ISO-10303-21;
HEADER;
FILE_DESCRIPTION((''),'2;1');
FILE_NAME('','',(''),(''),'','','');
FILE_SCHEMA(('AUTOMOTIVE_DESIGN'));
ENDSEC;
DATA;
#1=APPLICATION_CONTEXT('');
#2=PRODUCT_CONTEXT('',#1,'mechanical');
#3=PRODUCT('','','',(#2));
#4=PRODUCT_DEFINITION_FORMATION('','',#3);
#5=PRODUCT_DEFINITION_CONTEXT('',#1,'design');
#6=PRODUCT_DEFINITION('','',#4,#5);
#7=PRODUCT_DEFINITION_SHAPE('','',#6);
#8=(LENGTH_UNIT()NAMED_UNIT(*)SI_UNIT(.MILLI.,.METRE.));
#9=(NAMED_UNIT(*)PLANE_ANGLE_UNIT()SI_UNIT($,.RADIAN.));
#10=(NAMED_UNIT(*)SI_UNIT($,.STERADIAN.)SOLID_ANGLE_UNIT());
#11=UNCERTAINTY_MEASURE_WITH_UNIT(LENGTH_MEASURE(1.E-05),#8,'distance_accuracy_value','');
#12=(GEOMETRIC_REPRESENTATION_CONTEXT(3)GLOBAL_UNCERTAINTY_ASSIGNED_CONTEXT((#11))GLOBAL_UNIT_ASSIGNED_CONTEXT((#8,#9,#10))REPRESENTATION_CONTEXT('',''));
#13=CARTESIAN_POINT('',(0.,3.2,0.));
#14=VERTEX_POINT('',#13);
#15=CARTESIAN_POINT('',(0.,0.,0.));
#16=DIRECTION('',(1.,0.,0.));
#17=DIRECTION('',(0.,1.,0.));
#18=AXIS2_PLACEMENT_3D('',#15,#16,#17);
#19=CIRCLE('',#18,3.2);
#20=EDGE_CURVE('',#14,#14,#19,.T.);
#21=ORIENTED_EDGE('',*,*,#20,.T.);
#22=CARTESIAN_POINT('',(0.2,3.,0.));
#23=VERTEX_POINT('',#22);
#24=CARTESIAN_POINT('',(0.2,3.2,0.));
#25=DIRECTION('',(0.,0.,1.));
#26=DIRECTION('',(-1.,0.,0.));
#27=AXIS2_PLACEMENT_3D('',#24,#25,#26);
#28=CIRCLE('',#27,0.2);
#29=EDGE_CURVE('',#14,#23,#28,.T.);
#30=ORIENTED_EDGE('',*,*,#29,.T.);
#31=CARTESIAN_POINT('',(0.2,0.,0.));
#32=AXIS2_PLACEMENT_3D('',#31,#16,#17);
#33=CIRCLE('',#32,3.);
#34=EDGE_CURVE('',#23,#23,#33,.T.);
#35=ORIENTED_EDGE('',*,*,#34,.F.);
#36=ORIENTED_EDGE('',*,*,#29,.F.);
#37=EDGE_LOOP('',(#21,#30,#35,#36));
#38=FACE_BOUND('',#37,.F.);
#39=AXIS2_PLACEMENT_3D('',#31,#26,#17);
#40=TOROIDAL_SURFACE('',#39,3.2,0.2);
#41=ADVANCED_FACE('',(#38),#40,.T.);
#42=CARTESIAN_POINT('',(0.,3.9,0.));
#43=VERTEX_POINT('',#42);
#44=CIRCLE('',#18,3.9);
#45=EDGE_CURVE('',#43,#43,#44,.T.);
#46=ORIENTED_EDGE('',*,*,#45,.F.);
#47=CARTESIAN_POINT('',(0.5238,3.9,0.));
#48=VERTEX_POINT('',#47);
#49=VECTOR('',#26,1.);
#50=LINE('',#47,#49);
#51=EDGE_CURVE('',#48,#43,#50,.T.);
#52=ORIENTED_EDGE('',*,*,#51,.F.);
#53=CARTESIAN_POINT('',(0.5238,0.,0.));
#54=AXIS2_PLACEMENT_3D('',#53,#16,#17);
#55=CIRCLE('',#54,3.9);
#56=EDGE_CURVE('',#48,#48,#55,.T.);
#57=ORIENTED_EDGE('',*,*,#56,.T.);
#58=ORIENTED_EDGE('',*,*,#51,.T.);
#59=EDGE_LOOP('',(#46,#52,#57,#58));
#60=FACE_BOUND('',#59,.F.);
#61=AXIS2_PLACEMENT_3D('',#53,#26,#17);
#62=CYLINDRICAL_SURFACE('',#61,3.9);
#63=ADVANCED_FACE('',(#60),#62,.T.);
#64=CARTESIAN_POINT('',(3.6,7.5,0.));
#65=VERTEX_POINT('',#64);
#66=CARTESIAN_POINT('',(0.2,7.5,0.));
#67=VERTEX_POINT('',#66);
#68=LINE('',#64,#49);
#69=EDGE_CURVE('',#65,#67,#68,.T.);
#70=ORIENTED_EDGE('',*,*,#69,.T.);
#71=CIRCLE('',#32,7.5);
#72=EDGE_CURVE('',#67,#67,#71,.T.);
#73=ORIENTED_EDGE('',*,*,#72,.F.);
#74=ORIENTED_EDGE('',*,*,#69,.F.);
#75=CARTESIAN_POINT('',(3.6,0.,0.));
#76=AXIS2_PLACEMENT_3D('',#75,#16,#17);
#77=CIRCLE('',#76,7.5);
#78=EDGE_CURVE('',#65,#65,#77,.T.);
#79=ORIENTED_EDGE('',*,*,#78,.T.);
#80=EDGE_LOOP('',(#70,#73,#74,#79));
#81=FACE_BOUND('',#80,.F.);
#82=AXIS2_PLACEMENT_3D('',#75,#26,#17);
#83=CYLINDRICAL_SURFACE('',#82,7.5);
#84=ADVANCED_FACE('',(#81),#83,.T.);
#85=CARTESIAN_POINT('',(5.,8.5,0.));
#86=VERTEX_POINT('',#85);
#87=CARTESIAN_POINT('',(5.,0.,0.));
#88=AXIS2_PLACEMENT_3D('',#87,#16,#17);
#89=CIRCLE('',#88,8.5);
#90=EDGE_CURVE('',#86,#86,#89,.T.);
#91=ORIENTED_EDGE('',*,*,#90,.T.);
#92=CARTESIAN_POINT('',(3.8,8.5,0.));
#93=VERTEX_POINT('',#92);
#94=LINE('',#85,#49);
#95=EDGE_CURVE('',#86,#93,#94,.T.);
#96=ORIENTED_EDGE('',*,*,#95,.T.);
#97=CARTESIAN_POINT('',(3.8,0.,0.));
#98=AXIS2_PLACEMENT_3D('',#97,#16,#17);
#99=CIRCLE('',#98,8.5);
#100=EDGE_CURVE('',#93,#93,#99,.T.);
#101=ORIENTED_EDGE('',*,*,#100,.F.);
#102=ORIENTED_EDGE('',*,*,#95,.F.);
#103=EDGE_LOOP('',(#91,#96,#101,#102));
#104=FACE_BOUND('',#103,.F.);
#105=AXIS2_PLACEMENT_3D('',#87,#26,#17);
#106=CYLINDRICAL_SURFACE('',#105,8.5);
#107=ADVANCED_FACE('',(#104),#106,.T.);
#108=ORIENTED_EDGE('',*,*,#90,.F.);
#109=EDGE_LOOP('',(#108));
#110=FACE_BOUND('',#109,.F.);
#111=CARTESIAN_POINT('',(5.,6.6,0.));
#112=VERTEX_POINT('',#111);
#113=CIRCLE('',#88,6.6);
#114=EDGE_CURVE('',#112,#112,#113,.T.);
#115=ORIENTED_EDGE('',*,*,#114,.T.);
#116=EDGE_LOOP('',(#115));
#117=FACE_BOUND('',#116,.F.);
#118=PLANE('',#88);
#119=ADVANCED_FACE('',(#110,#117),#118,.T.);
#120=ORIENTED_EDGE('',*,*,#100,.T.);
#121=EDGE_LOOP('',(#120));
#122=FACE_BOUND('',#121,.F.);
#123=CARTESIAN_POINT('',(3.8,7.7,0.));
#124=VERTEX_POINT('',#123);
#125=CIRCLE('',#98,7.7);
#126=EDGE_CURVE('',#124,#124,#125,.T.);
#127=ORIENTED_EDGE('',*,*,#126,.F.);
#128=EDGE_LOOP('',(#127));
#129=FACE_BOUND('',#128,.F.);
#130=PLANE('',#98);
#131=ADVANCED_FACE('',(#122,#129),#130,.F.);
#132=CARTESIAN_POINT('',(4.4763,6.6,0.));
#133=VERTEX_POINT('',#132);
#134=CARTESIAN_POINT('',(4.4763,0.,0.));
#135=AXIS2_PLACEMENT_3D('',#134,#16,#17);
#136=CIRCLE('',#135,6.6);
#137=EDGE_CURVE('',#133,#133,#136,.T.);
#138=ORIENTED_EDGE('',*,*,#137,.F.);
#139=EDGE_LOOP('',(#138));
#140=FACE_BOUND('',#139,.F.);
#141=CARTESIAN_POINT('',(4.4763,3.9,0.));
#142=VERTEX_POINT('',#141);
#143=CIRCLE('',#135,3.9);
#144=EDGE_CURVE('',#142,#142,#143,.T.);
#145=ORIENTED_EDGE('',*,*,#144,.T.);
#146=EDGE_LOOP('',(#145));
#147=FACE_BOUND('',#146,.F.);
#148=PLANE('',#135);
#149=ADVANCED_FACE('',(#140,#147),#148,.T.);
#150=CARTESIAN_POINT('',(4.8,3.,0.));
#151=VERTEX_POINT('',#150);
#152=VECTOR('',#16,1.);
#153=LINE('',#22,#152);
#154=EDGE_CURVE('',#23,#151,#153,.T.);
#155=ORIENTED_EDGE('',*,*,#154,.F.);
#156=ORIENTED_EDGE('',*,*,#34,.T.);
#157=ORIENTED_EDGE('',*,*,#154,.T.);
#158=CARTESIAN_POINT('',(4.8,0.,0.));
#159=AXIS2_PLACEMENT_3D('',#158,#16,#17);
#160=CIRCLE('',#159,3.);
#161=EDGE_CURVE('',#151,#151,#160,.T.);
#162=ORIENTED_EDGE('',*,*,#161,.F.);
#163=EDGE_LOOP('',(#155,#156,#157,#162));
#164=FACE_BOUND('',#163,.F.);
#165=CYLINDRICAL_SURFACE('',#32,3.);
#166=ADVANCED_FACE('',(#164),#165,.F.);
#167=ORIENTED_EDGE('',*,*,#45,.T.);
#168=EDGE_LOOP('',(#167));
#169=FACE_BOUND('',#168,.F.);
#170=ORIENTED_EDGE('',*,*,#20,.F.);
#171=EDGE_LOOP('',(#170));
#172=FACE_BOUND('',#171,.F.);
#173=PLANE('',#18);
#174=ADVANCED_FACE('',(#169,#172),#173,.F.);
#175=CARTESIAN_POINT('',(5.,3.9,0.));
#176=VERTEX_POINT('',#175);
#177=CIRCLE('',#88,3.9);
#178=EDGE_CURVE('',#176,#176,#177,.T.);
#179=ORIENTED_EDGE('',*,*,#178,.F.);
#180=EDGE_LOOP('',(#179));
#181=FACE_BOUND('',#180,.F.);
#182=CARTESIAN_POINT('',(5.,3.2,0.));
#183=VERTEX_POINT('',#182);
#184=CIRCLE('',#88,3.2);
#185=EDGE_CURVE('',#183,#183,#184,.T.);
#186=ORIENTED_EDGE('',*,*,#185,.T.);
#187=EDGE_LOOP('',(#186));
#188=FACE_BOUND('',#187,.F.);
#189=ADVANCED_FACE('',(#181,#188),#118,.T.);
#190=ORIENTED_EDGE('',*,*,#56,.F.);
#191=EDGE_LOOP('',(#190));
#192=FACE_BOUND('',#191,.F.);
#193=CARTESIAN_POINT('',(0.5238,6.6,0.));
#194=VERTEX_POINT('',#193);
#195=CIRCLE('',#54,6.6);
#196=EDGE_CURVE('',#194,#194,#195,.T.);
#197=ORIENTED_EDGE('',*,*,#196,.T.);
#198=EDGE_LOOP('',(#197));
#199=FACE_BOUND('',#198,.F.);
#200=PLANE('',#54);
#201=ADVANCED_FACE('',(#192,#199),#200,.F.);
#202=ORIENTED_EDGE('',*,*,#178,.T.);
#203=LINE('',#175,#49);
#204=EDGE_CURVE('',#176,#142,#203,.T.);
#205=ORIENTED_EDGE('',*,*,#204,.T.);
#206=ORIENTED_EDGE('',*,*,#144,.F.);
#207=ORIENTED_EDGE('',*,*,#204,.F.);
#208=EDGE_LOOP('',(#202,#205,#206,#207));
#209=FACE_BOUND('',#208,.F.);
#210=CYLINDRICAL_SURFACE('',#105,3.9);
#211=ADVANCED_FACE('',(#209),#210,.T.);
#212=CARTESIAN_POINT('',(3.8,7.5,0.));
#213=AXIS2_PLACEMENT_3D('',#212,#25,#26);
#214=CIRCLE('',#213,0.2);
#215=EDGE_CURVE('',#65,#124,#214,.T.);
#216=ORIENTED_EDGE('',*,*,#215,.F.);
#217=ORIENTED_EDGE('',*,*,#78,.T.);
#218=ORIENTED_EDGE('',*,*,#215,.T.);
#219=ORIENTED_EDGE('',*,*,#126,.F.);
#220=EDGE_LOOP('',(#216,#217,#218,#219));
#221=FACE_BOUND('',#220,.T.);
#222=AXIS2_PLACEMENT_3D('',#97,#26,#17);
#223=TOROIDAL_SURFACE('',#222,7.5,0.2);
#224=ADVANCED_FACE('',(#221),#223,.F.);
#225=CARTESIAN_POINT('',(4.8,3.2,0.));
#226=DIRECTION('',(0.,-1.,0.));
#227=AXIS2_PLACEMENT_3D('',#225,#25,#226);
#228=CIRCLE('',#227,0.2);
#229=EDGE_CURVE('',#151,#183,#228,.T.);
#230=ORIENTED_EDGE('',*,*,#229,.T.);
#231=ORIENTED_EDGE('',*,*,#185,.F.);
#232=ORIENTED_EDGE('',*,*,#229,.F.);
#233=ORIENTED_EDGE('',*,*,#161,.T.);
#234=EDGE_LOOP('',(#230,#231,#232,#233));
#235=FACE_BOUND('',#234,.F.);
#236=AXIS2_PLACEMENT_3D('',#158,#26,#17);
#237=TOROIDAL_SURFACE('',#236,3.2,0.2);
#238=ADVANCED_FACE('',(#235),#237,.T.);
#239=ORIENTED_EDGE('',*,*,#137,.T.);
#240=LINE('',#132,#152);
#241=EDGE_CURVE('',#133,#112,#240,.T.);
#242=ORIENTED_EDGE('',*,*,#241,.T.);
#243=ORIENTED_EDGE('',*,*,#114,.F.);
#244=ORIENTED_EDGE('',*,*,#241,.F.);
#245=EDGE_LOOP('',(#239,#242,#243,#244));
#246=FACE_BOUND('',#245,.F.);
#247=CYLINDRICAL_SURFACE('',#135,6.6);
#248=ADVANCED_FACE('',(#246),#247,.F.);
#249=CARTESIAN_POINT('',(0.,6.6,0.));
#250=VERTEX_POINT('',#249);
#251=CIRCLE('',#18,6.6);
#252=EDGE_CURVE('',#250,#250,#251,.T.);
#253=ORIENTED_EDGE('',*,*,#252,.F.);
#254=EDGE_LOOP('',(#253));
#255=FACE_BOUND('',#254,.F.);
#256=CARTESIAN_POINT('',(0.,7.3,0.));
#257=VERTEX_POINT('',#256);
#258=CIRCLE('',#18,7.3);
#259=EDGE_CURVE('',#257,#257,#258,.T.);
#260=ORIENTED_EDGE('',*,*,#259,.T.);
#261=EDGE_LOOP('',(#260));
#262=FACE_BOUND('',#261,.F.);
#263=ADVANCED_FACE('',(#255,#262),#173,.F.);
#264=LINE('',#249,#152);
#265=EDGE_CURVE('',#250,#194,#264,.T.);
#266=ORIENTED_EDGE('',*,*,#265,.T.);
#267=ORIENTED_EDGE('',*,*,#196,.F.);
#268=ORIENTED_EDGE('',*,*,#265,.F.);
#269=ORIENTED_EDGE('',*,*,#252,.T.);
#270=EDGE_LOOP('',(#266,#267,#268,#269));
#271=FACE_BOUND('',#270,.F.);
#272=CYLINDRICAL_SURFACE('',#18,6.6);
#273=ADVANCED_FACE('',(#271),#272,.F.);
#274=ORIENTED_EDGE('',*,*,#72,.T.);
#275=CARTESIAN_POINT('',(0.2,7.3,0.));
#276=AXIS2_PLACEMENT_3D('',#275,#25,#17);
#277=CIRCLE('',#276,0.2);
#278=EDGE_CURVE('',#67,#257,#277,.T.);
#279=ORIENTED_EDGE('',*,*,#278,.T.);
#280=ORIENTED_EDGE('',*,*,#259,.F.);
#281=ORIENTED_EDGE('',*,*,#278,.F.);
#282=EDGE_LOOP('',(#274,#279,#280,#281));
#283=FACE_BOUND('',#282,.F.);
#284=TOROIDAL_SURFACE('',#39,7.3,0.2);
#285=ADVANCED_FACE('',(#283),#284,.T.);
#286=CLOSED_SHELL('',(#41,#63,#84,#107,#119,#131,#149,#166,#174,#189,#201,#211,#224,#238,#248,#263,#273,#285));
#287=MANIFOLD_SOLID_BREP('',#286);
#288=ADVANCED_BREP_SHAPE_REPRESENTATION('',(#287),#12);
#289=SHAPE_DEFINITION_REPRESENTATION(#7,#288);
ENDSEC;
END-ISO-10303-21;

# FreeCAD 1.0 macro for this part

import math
import FreeCAD as App
import Part
import Sketcher
from FreeCAD import Vector

doc = App.newDocument("Part")
params = doc.addObject("Spreadsheet::Sheet", "Params")
for row, (alias, value) in enumerate([
    ("sketch1_radius", "0.2 mm"),
    ("sketch1_width", "4.6 mm"),
    ("sketch1_width2", "1.2 mm"),
    ("sketch1_height", "0.7 mm"),
    ("sketch1_height2", "2.7 mm"),
    ("revolution_angle", "360 deg"),
], start=1):
    params.set(f"A{row}", alias)
    params.set(f"B{row}", "=" + value)
    params.setAlias(f"B{row}", alias)

body = doc.addObject("PartDesign::Body", "Body")

# Sketch on XY plane
sketch1 = body.newObject("Sketcher::SketchObject", "Sketch")
sketch1.AttachmentSupport = (doc.getObject("XY_Plane"), [""])
sketch1.MapMode = "FlatFace"
sketch1.addGeometry(Part.LineSegment(Vector(0, 3.9, 0), Vector(0, 3.2, 0)), False)
sketch1.addGeometry(Part.ArcOfCircle(Part.Circle(Vector(0.2, 3.2, 0), Vector(0, 0, 1), 0.2), math.radians(180), math.radians(270)), False)
sketch1.addGeometry(Part.LineSegment(Vector(0.2, 3, 0), Vector(4.8, 3, 0)), False)
sketch1.addGeometry(Part.ArcOfCircle(Part.Circle(Vector(4.8, 3.2, 0), Vector(0, 0, 1), 0.2), math.radians(-90), math.radians(0)), False)
sketch1.addGeometry(Part.LineSegment(Vector(5, 3.2, 0), Vector(5, 3.9, 0)), False)
sketch1.addGeometry(Part.LineSegment(Vector(5, 3.9, 0), Vector(4.4763, 3.9, 0)), False)
sketch1.addGeometry(Part.LineSegment(Vector(4.4763, 3.9, 0), Vector(4.4763, 6.6, 0)), False)
sketch1.addGeometry(Part.LineSegment(Vector(4.4763, 6.6, 0), Vector(5, 6.6, 0)), False)
sketch1.addGeometry(Part.LineSegment(Vector(5, 6.6, 0), Vector(5, 8.5, 0)), False)
sketch1.addGeometry(Part.LineSegment(Vector(5, 8.5, 0), Vector(3.8, 8.5, 0)), False)
sketch1.addGeometry(Part.LineSegment(Vector(3.8, 8.5, 0), Vector(3.8, 7.7, 0)), False)
sketch1.addGeometry(Part.ArcOfCircle(Part.Circle(Vector(3.8, 7.5, 0), Vector(0, 0, 1), 0.2), math.radians(180), math.radians(450)), False)
sketch1.addGeometry(Part.LineSegment(Vector(3.6, 7.5, 0), Vector(0.2, 7.5, 0)), False)
sketch1.addGeometry(Part.ArcOfCircle(Part.Circle(Vector(0.2, 7.3, 0), Vector(0, 0, 1), 0.2), math.radians(90), math.radians(180)), False)
sketch1.addGeometry(Part.LineSegment(Vector(0, 7.3, 0), Vector(0, 6.6, 0)), False)
sketch1.addGeometry(Part.LineSegment(Vector(0, 6.6, 0), Vector(0.5238, 6.6, 0)), False)
sketch1.addGeometry(Part.LineSegment(Vector(0.5238, 6.6, 0), Vector(0.5238, 3.9, 0)), False)
sketch1.addGeometry(Part.LineSegment(Vector(0.5238, 3.9, 0), Vector(0, 3.9, 0)), False)
sketch1.addConstraint(Sketcher.Constraint("Tangent", 0, 2, 1, 1))
sketch1.addConstraint(Sketcher.Constraint("Tangent", 1, 2, 2, 1))
sketch1.addConstraint(Sketcher.Constraint("Tangent", 2, 2, 3, 1))
sketch1.addConstraint(Sketcher.Constraint("Tangent", 3, 2, 4, 1))
sketch1.addConstraint(Sketcher.Constraint("Coincident", 4, 2, 5, 1))
sketch1.addConstraint(Sketcher.Constraint("Coincident", 5, 2, 6, 1))
sketch1.addConstraint(Sketcher.Constraint("Coincident", 6, 2, 7, 1))
sketch1.addConstraint(Sketcher.Constraint("Coincident", 7, 2, 8, 1))
sketch1.addConstraint(Sketcher.Constraint("Coincident", 8, 2, 9, 1))
sketch1.addConstraint(Sketcher.Constraint("Coincident", 9, 2, 10, 1))
sketch1.addConstraint(Sketcher.Constraint("Coincident", 10, 2, 11, 2))
sketch1.addConstraint(Sketcher.Constraint("Coincident", 11, 1, 12, 1))
sketch1.addConstraint(Sketcher.Constraint("Tangent", 12, 2, 13, 1))
sketch1.addConstraint(Sketcher.Constraint("Tangent", 13, 2, 14, 1))
sketch1.addConstraint(Sketcher.Constraint("Coincident", 14, 2, 15, 1))
sketch1.addConstraint(Sketcher.Constraint("Coincident", 15, 2, 16, 1))
sketch1.addConstraint(Sketcher.Constraint("Coincident", 16, 2, 17, 1))
sketch1.addConstraint(Sketcher.Constraint("Coincident", 17, 2, 0, 1))
sketch1.addConstraint(Sketcher.Constraint("Vertical", 0))
sketch1.addConstraint(Sketcher.Constraint("Horizontal", 2))
sketch1.addConstraint(Sketcher.Constraint("Vertical", 4))
sketch1.addConstraint(Sketcher.Constraint("Horizontal", 5))
sketch1.addConstraint(Sketcher.Constraint("Vertical", 6))
sketch1.addConstraint(Sketcher.Constraint("Horizontal", 7))
sketch1.addConstraint(Sketcher.Constraint("Vertical", 8))
sketch1.addConstraint(Sketcher.Constraint("Horizontal", 9))
sketch1.addConstraint(Sketcher.Constraint("Vertical", 10))
sketch1.addConstraint(Sketcher.Constraint("Horizontal", 12))
sketch1.addConstraint(Sketcher.Constraint("Vertical", 14))
sketch1.addConstraint(Sketcher.Constraint("Horizontal", 15))
sketch1.addConstraint(Sketcher.Constraint("Vertical", 16))
sketch1.addConstraint(Sketcher.Constraint("Horizontal", 17))
sketch1.addConstraint(Sketcher.Constraint("Equal", 1, 3))
sketch1.addConstraint(Sketcher.Constraint("Equal", 3, 11))
sketch1.addConstraint(Sketcher.Constraint("Equal", 11, 13))
sketch1.addConstraint(Sketcher.Constraint("PointOnObject", 0, 2, -2))
sketch1.addConstraint(Sketcher.Constraint("PointOnObject", 13, 2, -2))
sketch1.addConstraint(Sketcher.Constraint("Horizontal", 7, 2, 14, 2))
sketch1.addConstraint(Sketcher.Constraint("Horizontal", 5, 2, 16, 2))
sketch1.addConstraint(Sketcher.Constraint("Vertical", 4, 2, 7, 2))
sketch1.addConstraint(Sketcher.Constraint("Vertical", 11, 3, 9, 2))
sketch1.addConstraint(Sketcher.Constraint("Equal", 7, 15))
sketch1.addConstraint(Sketcher.Constraint("Equal", 4, 14))
sketch1.addConstraint(Sketcher.Constraint("Radius", 1, 0.2))
sketch1.addConstraint(Sketcher.Constraint("DistanceX", 2, 1, 2, 2, 4.6))
sketch1.addConstraint(Sketcher.Constraint("DistanceX", 9, 2, 9, 1, 1.2))
sketch1.addConstraint(Sketcher.Constraint("DistanceY", 0, 2, 0, 1, 0.7))
sketch1.addConstraint(Sketcher.Constraint("DistanceY", 6, 1, 6, 2, 2.7))
sketch1.addConstraint(Sketcher.Constraint("DistanceY", 8, 1, 8, 2, 1.9))
sketch1.addConstraint(Sketcher.Constraint("DistanceY", 10, 2, 10, 1, 0.8))
sketch1.addConstraint(Sketcher.Constraint("DistanceY", -1, 1, 1, 2, 3.0))
sketch1.addConstraint(Sketcher.Constraint("DistanceX", 5, 2, 5, 1, 0.5237))
sketch1.setExpression("Constraints[43]", "Params.sketch1_radius")
sketch1.setExpression("Constraints[44]", "Params.sketch1_width")
sketch1.setExpression("Constraints[45]", "Params.sketch1_width2")
sketch1.setExpression("Constraints[46]", "Params.sketch1_height")
sketch1.setExpression("Constraints[47]", "Params.sketch1_height2")
revolution = body.newObject("PartDesign::Revolution", "Revolution")
revolution.Profile = sketch1
revolution.ReferenceAxis = (sketch1, ["H_Axis"])
revolution.setExpression("Angle", "Params.revolution_angle")

doc.recompute()
